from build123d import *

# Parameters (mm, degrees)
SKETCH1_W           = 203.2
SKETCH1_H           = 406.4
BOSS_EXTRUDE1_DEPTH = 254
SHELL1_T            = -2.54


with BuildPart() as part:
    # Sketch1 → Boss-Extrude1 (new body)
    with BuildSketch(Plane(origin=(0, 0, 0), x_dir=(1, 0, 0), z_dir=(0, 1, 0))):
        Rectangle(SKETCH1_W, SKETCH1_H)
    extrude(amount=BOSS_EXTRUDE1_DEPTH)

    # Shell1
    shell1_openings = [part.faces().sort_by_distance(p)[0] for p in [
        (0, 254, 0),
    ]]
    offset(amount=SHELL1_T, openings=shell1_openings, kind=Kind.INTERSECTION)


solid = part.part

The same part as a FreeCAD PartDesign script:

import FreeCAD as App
import Part
import Sketcher
Q = App.Units.Quantity


def faces_at(feature, points):
    """Names of the faces that lie closest to the given points."""
    faces = feature.Shape.Faces
    near = lambda p: min(range(len(faces)), key=lambda i: faces[i].distToShape(Part.Vertex(*p))[0])
    return sorted({f"Face{near(p) + 1}" for p in points})


def add_polygon(sketch, points):
    """Adds a closed chain of lines whose ends are joined by coincident constraints."""
    first, n = sketch.GeometryCount, len(points)
    for a, b in zip(points, points[1:] + points[:1]):
        sketch.addGeometry(Part.LineSegment(App.Vector(*a, 0), App.Vector(*b, 0)), False)
    for i in range(n):
        sketch.addConstraint(Sketcher.Constraint("Coincident", first + i, 2, first + (i + 1) % n, 1))

doc = App.newDocument("Part")
params = doc.addObject("Spreadsheet::Sheet", "Params")
for row, (alias, value) in enumerate([
    ("sketch1_width", "8 in"),
    ("sketch1_height", "16 in"),
    ("pad1_length", "10 in"),
    ("thickness_wall", "0.1 in"),
], start=1):
    params.set(f"A{row}", alias)
    params.set(f"B{row}", "=" + value)
    params.setAlias(f"B{row}", alias)

body = doc.addObject("PartDesign::Body", "Body")

sketch1 = body.newObject("Sketcher::SketchObject", "Sketch")
sketch1.AttachmentSupport = (doc.getObject("XZ_Plane"), [""])
sketch1.MapMode = "FlatFace"
add_polygon(sketch1, [(-101.6, -203.2), (-101.6, 203.2), (101.6, 203.2), (101.6, -203.2)])
sketch1.addConstraint(Sketcher.Constraint("Vertical", 0))
sketch1.addConstraint(Sketcher.Constraint("Horizontal", 1))
sketch1.addConstraint(Sketcher.Constraint("Vertical", 2))
sketch1.addConstraint(Sketcher.Constraint("Horizontal", 3))
sketch1.addConstraint(Sketcher.Constraint("Symmetric", 0, 2, 2, 2, -1, 1))
sketch1.addConstraint(Sketcher.Constraint("DistanceX", 1, 1, 1, 2, Q("8 in")))
sketch1.addConstraint(Sketcher.Constraint("DistanceY", 0, 1, 0, 2, Q("16 in")))
sketch1.setExpression("Constraints[9]", "Params.sketch1_width")
sketch1.setExpression("Constraints[10]", "Params.sketch1_height")
pad1 = body.newObject("PartDesign::Pad", "Pad")
pad1.Profile = sketch1
pad1.setExpression("Length", "Params.pad1_length")
pad1.Reversed = True
doc.recompute()

thickness = body.newObject("PartDesign::Thickness", "Thickness")
thickness.Base = (pad1, faces_at(pad1, [(0, 254, 0)]))
thickness.setExpression("Value", "Params.thickness_wall")
thickness.Reversed = True
thickness.Join = "Intersection"

doc.recompute()
